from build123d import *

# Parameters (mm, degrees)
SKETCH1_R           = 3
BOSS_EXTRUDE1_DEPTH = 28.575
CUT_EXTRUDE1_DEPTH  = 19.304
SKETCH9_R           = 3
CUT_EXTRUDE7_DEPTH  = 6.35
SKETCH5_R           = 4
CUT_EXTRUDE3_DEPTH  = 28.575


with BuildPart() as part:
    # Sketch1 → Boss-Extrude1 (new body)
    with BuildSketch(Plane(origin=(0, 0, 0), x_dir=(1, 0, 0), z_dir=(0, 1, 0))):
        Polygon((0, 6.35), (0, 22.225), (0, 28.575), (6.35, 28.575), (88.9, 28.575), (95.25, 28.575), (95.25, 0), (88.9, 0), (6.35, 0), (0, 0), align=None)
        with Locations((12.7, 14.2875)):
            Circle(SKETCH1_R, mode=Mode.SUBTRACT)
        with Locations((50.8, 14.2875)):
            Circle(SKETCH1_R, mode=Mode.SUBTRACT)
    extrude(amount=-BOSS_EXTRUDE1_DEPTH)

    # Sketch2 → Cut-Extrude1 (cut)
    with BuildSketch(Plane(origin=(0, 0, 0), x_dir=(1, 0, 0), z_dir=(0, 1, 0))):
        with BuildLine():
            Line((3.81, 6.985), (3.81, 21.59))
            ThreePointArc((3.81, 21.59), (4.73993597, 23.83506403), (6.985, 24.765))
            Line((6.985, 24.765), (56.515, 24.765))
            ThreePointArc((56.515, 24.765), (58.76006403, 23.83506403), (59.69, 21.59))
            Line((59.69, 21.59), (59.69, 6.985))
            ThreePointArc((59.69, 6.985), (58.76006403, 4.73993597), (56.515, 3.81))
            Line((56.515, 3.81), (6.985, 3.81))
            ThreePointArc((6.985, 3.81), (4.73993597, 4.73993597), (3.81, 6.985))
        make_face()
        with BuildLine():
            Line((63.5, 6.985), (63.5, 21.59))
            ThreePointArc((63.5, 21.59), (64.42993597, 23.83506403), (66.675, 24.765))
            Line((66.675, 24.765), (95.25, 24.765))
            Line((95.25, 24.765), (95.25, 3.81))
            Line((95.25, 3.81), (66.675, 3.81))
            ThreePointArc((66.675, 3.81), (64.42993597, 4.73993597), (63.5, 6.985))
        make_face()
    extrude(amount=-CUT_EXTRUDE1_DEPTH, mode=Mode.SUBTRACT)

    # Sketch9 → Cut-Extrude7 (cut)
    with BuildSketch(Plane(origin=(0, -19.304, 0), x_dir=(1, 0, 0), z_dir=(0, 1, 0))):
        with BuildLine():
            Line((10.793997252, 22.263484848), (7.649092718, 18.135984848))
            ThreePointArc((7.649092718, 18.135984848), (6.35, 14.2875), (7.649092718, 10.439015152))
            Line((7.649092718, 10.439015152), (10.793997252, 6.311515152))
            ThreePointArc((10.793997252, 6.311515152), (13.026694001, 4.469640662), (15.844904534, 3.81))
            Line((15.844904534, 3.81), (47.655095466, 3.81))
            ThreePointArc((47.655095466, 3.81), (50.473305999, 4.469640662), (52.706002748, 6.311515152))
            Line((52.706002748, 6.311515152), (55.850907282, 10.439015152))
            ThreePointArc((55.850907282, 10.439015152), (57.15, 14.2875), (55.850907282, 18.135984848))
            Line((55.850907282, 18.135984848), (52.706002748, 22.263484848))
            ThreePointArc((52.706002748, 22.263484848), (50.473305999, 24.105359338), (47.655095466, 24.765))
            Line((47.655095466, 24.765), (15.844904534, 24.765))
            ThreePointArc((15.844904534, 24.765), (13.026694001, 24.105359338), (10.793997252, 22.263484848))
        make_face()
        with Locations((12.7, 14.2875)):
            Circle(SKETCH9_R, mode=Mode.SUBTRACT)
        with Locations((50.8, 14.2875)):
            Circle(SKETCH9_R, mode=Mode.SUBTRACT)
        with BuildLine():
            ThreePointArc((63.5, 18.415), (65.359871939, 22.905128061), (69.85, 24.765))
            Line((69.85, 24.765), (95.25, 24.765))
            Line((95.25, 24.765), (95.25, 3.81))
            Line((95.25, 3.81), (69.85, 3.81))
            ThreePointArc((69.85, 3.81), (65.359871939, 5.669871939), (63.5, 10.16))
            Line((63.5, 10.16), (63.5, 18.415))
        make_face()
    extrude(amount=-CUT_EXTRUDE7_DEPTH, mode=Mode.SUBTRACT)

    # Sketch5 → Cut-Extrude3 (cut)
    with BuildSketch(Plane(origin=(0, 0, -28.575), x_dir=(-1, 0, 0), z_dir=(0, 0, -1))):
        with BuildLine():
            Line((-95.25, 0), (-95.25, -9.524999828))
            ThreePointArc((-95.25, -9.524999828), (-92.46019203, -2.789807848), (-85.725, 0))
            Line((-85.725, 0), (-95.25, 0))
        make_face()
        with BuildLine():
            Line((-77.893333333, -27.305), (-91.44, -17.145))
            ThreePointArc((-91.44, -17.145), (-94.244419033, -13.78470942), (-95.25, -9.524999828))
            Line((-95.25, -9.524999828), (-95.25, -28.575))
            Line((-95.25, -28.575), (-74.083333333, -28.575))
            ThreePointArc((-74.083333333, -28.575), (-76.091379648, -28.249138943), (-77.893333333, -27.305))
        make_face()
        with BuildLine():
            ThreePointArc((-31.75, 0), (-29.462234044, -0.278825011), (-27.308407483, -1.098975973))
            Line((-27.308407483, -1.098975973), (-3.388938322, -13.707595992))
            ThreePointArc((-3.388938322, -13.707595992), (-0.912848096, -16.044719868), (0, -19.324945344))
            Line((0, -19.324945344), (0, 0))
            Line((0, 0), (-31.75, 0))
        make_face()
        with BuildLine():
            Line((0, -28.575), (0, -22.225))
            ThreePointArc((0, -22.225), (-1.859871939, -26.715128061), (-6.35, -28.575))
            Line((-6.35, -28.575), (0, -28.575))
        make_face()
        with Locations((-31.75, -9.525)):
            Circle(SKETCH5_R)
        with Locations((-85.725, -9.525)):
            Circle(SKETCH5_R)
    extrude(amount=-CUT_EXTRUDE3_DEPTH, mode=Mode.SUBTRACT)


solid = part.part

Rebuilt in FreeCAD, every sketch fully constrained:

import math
import FreeCAD as App
import Part
import Sketcher
from FreeCAD import Vector
Q = App.Units.Quantity


def add_polygon(sketch, points):
    """Adds a closed chain of lines whose ends are joined by coincident constraints."""
    first, n = sketch.GeometryCount, len(points)
    for a, b in zip(points, points[1:] + points[:1]):
        sketch.addGeometry(Part.LineSegment(App.Vector(*a, 0), App.Vector(*b, 0)), False)
    for i in range(n):
        sketch.addConstraint(Sketcher.Constraint("Coincident", first + i, 2, first + (i + 1) % n, 1))

doc = App.newDocument("Part")
params = doc.addObject("Spreadsheet::Sheet", "Params")
for row, (alias, value) in enumerate([
    ("sketch1_width", "3.75 in"),
    ("sketch1_height", "1.125 in"),
    ("pad1_length", "1.125 in"),
    ("sketch2_radius", "0.125 in"),
    ("sketch2_width", "1.95 in"),
    ("pocket1_length", "0.76 in"),
    ("sketch3_width", "1 in"),
    ("sketch3_radius", "0.25 in"),
    ("sketch3_height", "0.325 in"),
    ("pocket2_length", "0.25 in"),
    ("sketch4_radius", "0.25 in"),
    ("sketch4_radius2", "0.375 in"),
    ("sketch4_height", "0.75 in"),
    ("pocket3_length", "1.125 in"),
], start=1):
    params.set(f"A{row}", alias)
    params.set(f"B{row}", "=" + value)
    params.setAlias(f"B{row}", alias)

body = doc.addObject("PartDesign::Body", "Body")

sketch1 = body.newObject("Sketcher::SketchObject", "Sketch")
sketch1.AttachmentSupport = (doc.getObject("XZ_Plane"), [""])
sketch1.MapMode = "FlatFace"
add_polygon(sketch1, [(0, -28.6), (0, 0), (95.2, 0), (95.2, -28.6)])
sketch1.addGeometry(Part.Circle(Vector(50.8, -14.3, 0), Vector(0, 0, 1), 3), False)
sketch1.addGeometry(Part.Circle(Vector(12.7, -14.3, 0), Vector(0, 0, 1), 3), False)
sketch1.addConstraint([
    Sketcher.Constraint("Vertical", 0),
    Sketcher.Constraint("Horizontal", 1),
    Sketcher.Constraint("Vertical", 2),
    Sketcher.Constraint("Horizontal", 3),
    Sketcher.Constraint("Coincident", 0, 2, -1, 1),
    Sketcher.Constraint("Equal", 4, 5),
    Sketcher.Constraint("Horizontal", 4, 3, 5, 3),
    Sketcher.Constraint("DistanceX", -1, 1, 4, 3, Q("2 in")),
    Sketcher.Constraint("DistanceX", 1, 1, 1, 2, Q("3.75 in")),
    Sketcher.Constraint("DistanceX", -1, 1, 5, 3, Q("0.5 in")),
    Sketcher.Constraint("Diameter", 4, Q("6 mm")),
    Sketcher.Constraint("DistanceY", 0, 1, 0, 2, Q("1.125 in")),
    Sketcher.Constraint("DistanceY", 4, 3, -1, 1, Q("0.5625 in")),
])
sketch1.setExpression("Constraints[12]", "Params.sketch1_width")
sketch1.setExpression("Constraints[15]", "Params.sketch1_height")
pad1 = body.newObject("PartDesign::Pad", "Pad")
pad1.Profile = sketch1
pad1.setExpression("Length", "Params.pad1_length")

sketch2 = body.newObject("Sketcher::SketchObject", "Sketch001")
sketch2.AttachmentSupport = (doc.getObject("XZ_Plane"), [""])
sketch2.MapMode = "FlatFace"
sketch2.addGeometry([
    Part.LineSegment(Vector(3.8, -21.6, 0), Vector(3.8, -7, 0)),
    Part.ArcOfCircle(Part.Circle(Vector(7, -7, 0), Vector(0, 0, 1), 3.2), math.radians(90), math.radians(180)),
    Part.LineSegment(Vector(7, -3.8, 0), Vector(56.5, -3.8, 0)),
    Part.ArcOfCircle(Part.Circle(Vector(56.5, -7, 0), Vector(0, 0, 1), 3.2), math.radians(0), math.radians(90)),
    Part.LineSegment(Vector(59.7, -7, 0), Vector(59.7, -21.6, 0)),
    Part.ArcOfCircle(Part.Circle(Vector(56.5, -21.6, 0), Vector(0, 0, 1), 3.2), math.radians(-90), math.radians(0)),
    Part.LineSegment(Vector(56.5, -24.8, 0), Vector(7, -24.8, 0)),
    Part.ArcOfCircle(Part.Circle(Vector(7, -21.6, 0), Vector(0, 0, 1), 3.2), math.radians(-180), math.radians(-90)),
    Part.LineSegment(Vector(63.5, -21.6, 0), Vector(63.5, -7, 0)),
    Part.ArcOfCircle(Part.Circle(Vector(66.7, -7, 0), Vector(0, 0, 1), 3.2), math.radians(90), math.radians(180)),
    Part.LineSegment(Vector(66.7, -3.8, 0), Vector(95.2, -3.8, 0)),
    Part.LineSegment(Vector(95.2, -3.8, 0), Vector(95.2, -24.8, 0)),
    Part.LineSegment(Vector(95.2, -24.8, 0), Vector(66.7, -24.8, 0)),
    Part.ArcOfCircle(Part.Circle(Vector(66.7, -21.6, 0), Vector(0, 0, 1), 3.2), math.radians(-180), math.radians(-90)),
], False)
sketch2.addConstraint([
    Sketcher.Constraint("Tangent", 0, 2, 1, 2),
    Sketcher.Constraint("Tangent", 1, 1, 2, 1),
    Sketcher.Constraint("Tangent", 2, 2, 3, 2),
    Sketcher.Constraint("Tangent", 3, 1, 4, 1),
    Sketcher.Constraint("Tangent", 4, 2, 5, 2),
    Sketcher.Constraint("Tangent", 5, 1, 6, 1),
    Sketcher.Constraint("Tangent", 6, 2, 7, 2),
    Sketcher.Constraint("Tangent", 7, 1, 0, 1),
    Sketcher.Constraint("Tangent", 8, 2, 9, 2),
    Sketcher.Constraint("Tangent", 9, 1, 10, 1),
    Sketcher.Constraint("Coincident", 10, 2, 11, 1),
    Sketcher.Constraint("Coincident", 11, 2, 12, 1),
    Sketcher.Constraint("Tangent", 12, 2, 13, 2),
    Sketcher.Constraint("Tangent", 13, 1, 8, 1),
    Sketcher.Constraint("Vertical", 0),
    Sketcher.Constraint("Horizontal", 2),
    Sketcher.Constraint("Vertical", 4),
    Sketcher.Constraint("Horizontal", 6),
    Sketcher.Constraint("Vertical", 8),
    Sketcher.Constraint("Horizontal", 10),
    Sketcher.Constraint("Vertical", 11),
    Sketcher.Constraint("Horizontal", 12),
    Sketcher.Constraint("Equal", 1, 3),
    Sketcher.Constraint("Equal", 3, 5),
    Sketcher.Constraint("Equal", 5, 7),
    Sketcher.Constraint("Equal", 7, 9),
    Sketcher.Constraint("Equal", 9, 13),
    Sketcher.Constraint("Horizontal", 3, 3, 9, 3),
    Sketcher.Constraint("Horizontal", 7, 3, 13, 3),
    Sketcher.Constraint("Radius", 1, Q("0.125 in")),
    Sketcher.Constraint("DistanceX", 2, 1, 2, 2, Q("1.95 in")),
    Sketcher.Constraint("DistanceX", -1, 1, 8, 2, Q("2.5 in")),
    Sketcher.Constraint("DistanceX", 3, 3, 9, 3, Q("0.4 in")),
    Sketcher.Constraint("DistanceY", 7, 3, 1, 1, Q("0.7 in")),
    Sketcher.Constraint("DistanceX", 3, 1, 10, 2, Q("1.4 in")),
    Sketcher.Constraint("DistanceY", 5, 3, -1, 1, Q("0.85 in")),
])
sketch2.setExpression("Constraints[29]", "Params.sketch2_radius")
sketch2.setExpression("Constraints[30]", "Params.sketch2_width")
pocket1 = body.newObject("PartDesign::Pocket", "Pocket")
pocket1.Profile = sketch2
pocket1.setExpression("Length", "Params.pocket1_length")
pocket1.Reversed = True

sketch3 = body.newObject("Sketcher::SketchObject", "Sketch002")
sketch3.AttachmentSupport = (doc.getObject("XZ_Plane"), [""])
sketch3.MapMode = "FlatFace"
sketch3.AttachmentOffset = App.Placement(Vector(0, 0, 0.76 * 25.4), App.Rotation())
sketch3.addGeometry([
    Part.LineSegment(Vector(10.8, -22.3, 0), Vector(7.6, -18.1, 0)),
    Part.ArcOfCircle(Part.Circle(Vector(12.7, -14.3, 0), Vector(0, 0, 1), 6.3), math.radians(143), math.radians(217)),
    Part.LineSegment(Vector(7.6, -10.4, 0), Vector(10.8, -6.3, 0)),
    Part.ArcOfCircle(Part.Circle(Vector(15.8, -10.2, 0), Vector(0, 0, 1), 6.3), math.radians(90), math.radians(143)),
    Part.LineSegment(Vector(15.8, -3.8, 0), Vector(47.7, -3.8, 0)),
    Part.ArcOfCircle(Part.Circle(Vector(47.7, -10.2, 0), Vector(0, 0, 1), 6.3), math.radians(37), math.radians(90)),
    Part.LineSegment(Vector(52.7, -6.3, 0), Vector(55.9, -10.4, 0)),
    Part.ArcOfCircle(Part.Circle(Vector(50.8, -14.3, 0), Vector(0, 0, 1), 6.3), math.radians(-37), math.radians(37)),
    Part.LineSegment(Vector(55.9, -18.1, 0), Vector(52.7, -22.3, 0)),
    Part.ArcOfCircle(Part.Circle(Vector(47.7, -18.4, 0), Vector(0, 0, 1), 6.3), math.radians(-90), math.radians(-37)),
    Part.LineSegment(Vector(47.7, -24.8, 0), Vector(15.8, -24.8, 0)),
    Part.ArcOfCircle(Part.Circle(Vector(15.8, -18.4, 0), Vector(0, 0, 1), 6.3), math.radians(-143), math.radians(-90)),
    Part.Circle(Vector(12.7, -14.3, 0), Vector(0, 0, 1), 3),
    Part.Circle(Vector(50.8, -14.3, 0), Vector(0, 0, 1), 3),
    Part.ArcOfCircle(Part.Circle(Vector(69.8, -18.4, 0), Vector(0, 0, 1), 6.3), math.radians(180), math.radians(270)),
    Part.LineSegment(Vector(63.5, -18.4, 0), Vector(63.5, -10.2, 0)),
    Part.ArcOfCircle(Part.Circle(Vector(69.8, -10.2, 0), Vector(0, 0, 1), 6.3), math.radians(90), math.radians(180)),
    Part.LineSegment(Vector(69.8, -3.8, 0), Vector(95.2, -3.8, 0)),
    Part.LineSegment(Vector(95.2, -3.8, 0), Vector(95.2, -24.8, 0)),
    Part.LineSegment(Vector(95.2, -24.8, 0), Vector(69.8, -24.8, 0)),
], False)
sketch3.addConstraint([
    Sketcher.Constraint("Tangent", 0, 2, 1, 2),
    Sketcher.Constraint("Tangent", 1, 1, 2, 1),
    Sketcher.Constraint("Tangent", 2, 2, 3, 2),
    Sketcher.Constraint("Tangent", 3, 1, 4, 1),
    Sketcher.Constraint("Tangent", 4, 2, 5, 2),
    Sketcher.Constraint("Tangent", 5, 1, 6, 1),
    Sketcher.Constraint("Tangent", 6, 2, 7, 2),
    Sketcher.Constraint("Tangent", 7, 1, 8, 1),
    Sketcher.Constraint("Tangent", 8, 2, 9, 2),
    Sketcher.Constraint("Tangent", 9, 1, 10, 1),
    Sketcher.Constraint("Tangent", 10, 2, 11, 2),
    Sketcher.Constraint("Tangent", 11, 1, 0, 1),
    Sketcher.Constraint("Tangent", 14, 1, 15, 1),
    Sketcher.Constraint("Tangent", 15, 2, 16, 2),
    Sketcher.Constraint("Tangent", 16, 1, 17, 1),
    Sketcher.Constraint("Coincident", 17, 2, 18, 1),
    Sketcher.Constraint("Coincident", 18, 2, 19, 1),
    Sketcher.Constraint("Tangent", 19, 2, 14, 2),
    Sketcher.Constraint("Horizontal", 4),
    Sketcher.Constraint("Horizontal", 10),
    Sketcher.Constraint("Vertical", 15),
    Sketcher.Constraint("Horizontal", 17),
    Sketcher.Constraint("Vertical", 18),
    Sketcher.Constraint("Horizontal", 19),
    Sketcher.Constraint("Coincident", 12, 3, 1, 3),
    Sketcher.Constraint("Coincident", 13, 3, 7, 3),
    Sketcher.Constraint("Equal", 1, 3),
    Sketcher.Constraint("Equal", 3, 5),
    Sketcher.Constraint("Equal", 5, 7),
    Sketcher.Constraint("Equal", 7, 9),
    Sketcher.Constraint("Equal", 9, 11),
    Sketcher.Constraint("Equal", 12, 13),
    Sketcher.Constraint("Equal", 11, 14),
    Sketcher.Constraint("Equal", 14, 16),
    Sketcher.Constraint("Parallel", 0, 6),
    Sketcher.Constraint("Parallel", 2, 8),
    Sketcher.Constraint("Horizontal", 1, 3, 7, 3),
    Sketcher.Constraint("Horizontal", 11, 3, 14, 3),
    Sketcher.Constraint("Horizontal", 5, 3, 16, 3),
    Sketcher.Constraint("Horizontal", 2, 2, 5, 1),
    Sketcher.Constraint("Vertical", 5, 3, 9, 3),
    Sketcher.Constraint("DistanceX", 17, 1, 17, 2, Q("1 in")),
    Sketcher.Constraint("Radius", 1, Q("0.25 in")),
    Sketcher.Constraint("DistanceX", -1, 1, 7, 3, Q("2 in")),
    Sketcher.Constraint("DistanceX", -1, 1, 1, 3, Q("0.5 in")),
    Sketcher.Constraint("DistanceY", 3, 3, -1, 1, Q("0.4 in")),
    Sketcher.Constraint("DistanceX", -1, 1, 14, 1, Q("2.5 in")),
    Sketcher.Constraint("Diameter", 12, Q("6 mm")),
    Sketcher.Constraint("DistanceY", 15, 1, 15, 2, Q("0.325 in")),
    Sketcher.Constraint("DistanceX", 4, 1, 4, 2, Q("31.810191 mm")),
])
sketch3.setExpression("Constraints[41]", "Params.sketch3_width")
sketch3.setExpression("Constraints[42]", "Params.sketch3_radius")
sketch3.setExpression("Constraints[48]", "Params.sketch3_height")
pocket2 = body.newObject("PartDesign::Pocket", "Pocket001")
pocket2.Profile = sketch3
pocket2.setExpression("Length", "Params.pocket2_length")
pocket2.Reversed = True

sketch4 = body.newObject("Sketcher::SketchObject", "Sketch003")
sketch4.AttachmentSupport = (doc.getObject("XY_Plane"), [""])
sketch4.MapMode = "FlatFace"
sketch4.AttachmentOffset = App.Placement(Vector(0, 0, -1.125 * 25.4), App.Rotation())
sketch4.addGeometry([
    Part.LineSegment(Vector(95.2, 0, 0), Vector(95.2, -9.5, 0)),
    Part.ArcOfCircle(Part.Circle(Vector(85.7, -9.5, 0), Vector(0, 0, 1), 9.5), math.radians(0), math.radians(90)),
    Part.LineSegment(Vector(85.7, 0, 0), Vector(95.2, 0, 0)),
    Part.LineSegment(Vector(77.9, -27.3, 0), Vector(91.4, -17.1, 0)),
    Part.ArcOfCircle(Part.Circle(Vector(85.7, -9.5, 0), Vector(0, 0, 1), 9.5), math.radians(-53), math.radians(0)),
    Part.LineSegment(Vector(95.2, -9.5, 0), Vector(95.2, -28.6, 0)),
    Part.LineSegment(Vector(95.2, -28.6, 0), Vector(74.1, -28.6, 0)),
    Part.ArcOfCircle(Part.Circle(Vector(74.1, -22.2, 0), Vector(0, 0, 1), 6.3), math.radians(-90), math.radians(-53)),
    Part.ArcOfCircle(Part.Circle(Vector(31.8, -9.5, 0), Vector(0, 0, 1), 9.5), math.radians(90), math.radians(118)),
    Part.LineSegment(Vector(27.3, -1.1, 0), Vector(3.4, -13.7, 0)),
    Part.ArcOfCircle(Part.Circle(Vector(6.4, -19.3, 0), Vector(0, 0, 1), 6.4), math.radians(118), math.radians(180)),
    Part.LineSegment(Vector(0, -19.3, 0), Vector(0, 0, 0)),
    Part.LineSegment(Vector(0, 0, 0), Vector(31.8, 0, 0)),
    Part.LineSegment(Vector(0, -28.6, 0), Vector(0, -22.2, 0)),
    Part.ArcOfCircle(Part.Circle(Vector(6.3, -22.2, 0), Vector(0, 0, 1), 6.3), math.radians(180), math.radians(270)),
    Part.LineSegment(Vector(6.3, -28.6, 0), Vector(0, -28.6, 0)),
    Part.Circle(Vector(31.8, -9.5, 0), Vector(0, 0, 1), 4),
    Part.Circle(Vector(85.7, -9.5, 0), Vector(0, 0, 1), 4),
], False)
sketch4.addConstraint([
    Sketcher.Constraint("Tangent", 0, 2, 1, 1),
    Sketcher.Constraint("Tangent", 1, 2, 2, 1),
    Sketcher.Constraint("Coincident", 2, 2, 0, 1),
    Sketcher.Constraint("Tangent", 3, 2, 4, 1),
    Sketcher.Constraint("Tangent", 4, 2, 5, 1),
    Sketcher.Constraint("Coincident", 5, 2, 6, 1),
    Sketcher.Constraint("Tangent", 6, 2, 7, 1),
    Sketcher.Constraint("Tangent", 7, 2, 3, 1),
    Sketcher.Constraint("Tangent", 8, 2, 9, 1),
    Sketcher.Constraint("Tangent", 9, 2, 10, 1),
    Sketcher.Constraint("Tangent", 10, 2, 11, 1),
    Sketcher.Constraint("Coincident", 11, 2, 12, 1),
    Sketcher.Constraint("Tangent", 12, 2, 8, 1),
    Sketcher.Constraint("Tangent", 13, 2, 14, 1),
    Sketcher.Constraint("Tangent", 14, 2, 15, 1),
    Sketcher.Constraint("Coincident", 15, 2, 13, 1),
    Sketcher.Constraint("Vertical", 0),
    Sketcher.Constraint("Horizontal", 2),
    Sketcher.Constraint("Vertical", 5),
    Sketcher.Constraint("Horizontal", 6),
    Sketcher.Constraint("Vertical", 11),
    Sketcher.Constraint("Horizontal", 12),
    Sketcher.Constraint("Vertical", 13),
    Sketcher.Constraint("Horizontal", 15),
    Sketcher.Constraint("Coincident", 11, 2, -1, 1),
    Sketcher.Constraint("Coincident", 4, 3, 1, 3),
    Sketcher.Constraint("Coincident", 16, 3, 8, 3),
    Sketcher.Constraint("Coincident", 17, 3, 1, 3),
    Sketcher.Constraint("Equal", 1, 4),
    Sketcher.Constraint("Equal", 4, 8),
    Sketcher.Constraint("Equal", 7, 10),
    Sketcher.Constraint("Equal", 10, 14),
    Sketcher.Constraint("Equal", 16, 17),
    Sketcher.Constraint("PointOnObject", 1, 2, -1),
    Sketcher.Constraint("PointOnObject", 13, 2, -2),
    Sketcher.Constraint("Horizontal", 7, 3, 14, 3),
    Sketcher.Constraint("Radius", 7, Q("0.25 in")),
    Sketcher.Constraint("Radius", 1, Q("0.375 in")),
    Sketcher.Constraint("DistanceX", 10, 3, 8, 3, Q("1 in")),
    Sketcher.Constraint("DistanceY", 5, 2, 5, 1, Q("0.75 in")),
    Sketcher.Constraint("DistanceX", -1, 1, 3, 2, Q("3.6 in")),
    Sketcher.Constraint("DistanceX", 8, 3, 0, 2, Q("2.5 in")),
    Sketcher.Constraint("Diameter", 16, Q("8 mm")),
    Sketcher.Constraint("Distance", 9, Q("27.039199 mm")),
])
sketch4.setExpression("Constraints[36]", "Params.sketch4_radius")
sketch4.setExpression("Constraints[37]", "Params.sketch4_radius2")
sketch4.setExpression("Constraints[39]", "Params.sketch4_height")
pocket3 = body.newObject("PartDesign::Pocket", "Pocket002")
pocket3.Profile = sketch4
pocket3.setExpression("Length", "Params.pocket3_length")
pocket3.Reversed = True

doc.recompute()
